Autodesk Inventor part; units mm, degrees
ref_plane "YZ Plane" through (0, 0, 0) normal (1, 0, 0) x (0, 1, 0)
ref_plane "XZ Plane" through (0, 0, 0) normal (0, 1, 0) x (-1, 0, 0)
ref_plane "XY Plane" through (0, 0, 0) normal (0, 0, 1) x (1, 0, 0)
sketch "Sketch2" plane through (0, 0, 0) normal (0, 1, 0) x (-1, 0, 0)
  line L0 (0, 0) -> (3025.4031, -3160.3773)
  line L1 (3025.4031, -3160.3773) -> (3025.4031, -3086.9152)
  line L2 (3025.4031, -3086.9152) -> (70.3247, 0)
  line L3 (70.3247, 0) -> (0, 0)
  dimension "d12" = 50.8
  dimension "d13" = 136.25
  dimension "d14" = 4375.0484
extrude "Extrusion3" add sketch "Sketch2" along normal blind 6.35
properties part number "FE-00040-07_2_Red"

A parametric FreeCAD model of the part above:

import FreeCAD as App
import Part
import Sketcher
Q = App.Units.Quantity


def add_polygon(sketch, points):
    """Adds a closed chain of lines whose ends are joined by coincident constraints."""
    first, n = sketch.GeometryCount, len(points)
    for a, b in zip(points, points[1:] + points[:1]):
        sketch.addGeometry(Part.LineSegment(App.Vector(*a, 0), App.Vector(*b, 0)), False)
    for i in range(n):
        sketch.addConstraint(Sketcher.Constraint("Coincident", first + i, 2, first + (i + 1) % n, 1))

doc = App.newDocument("Part")
body = doc.addObject("PartDesign::Body", "Body")

sketch1 = body.newObject("Sketcher::SketchObject", "Sketch")
sketch1.AttachmentSupport = (doc.getObject("XZ_Plane"), [""])
sketch1.MapMode = "FlatFace"
add_polygon(sketch1, [(-70, 0), (0, 0), (-3025, -3160), (-3025, -3087)])
sketch1.addConstraint(Sketcher.Constraint("Horizontal", 0))
sketch1.addConstraint(Sketcher.Constraint("Vertical", 2))
sketch1.addConstraint(Sketcher.Constraint("Coincident", 0, 2, -1, 1))
sketch1.addConstraint(Sketcher.Constraint("Parallel", 1, 3))
sketch1.addConstraint(Sketcher.Constraint("Distance", 1, Q("172.246 in")))
sketch1.addConstraint(Sketcher.Constraint("Angle", 1, Q("-133.75 deg")))
sketch1.addConstraint(Sketcher.Constraint("DistanceX", 0, 1, 0, 2, Q("2.7687 in")))
pad1 = body.newObject("PartDesign::Pad", "Pad")
pad1.Profile = sketch1
pad1.Length = Q("0.25 in")
pad1.Reversed = True

doc.recompute()
